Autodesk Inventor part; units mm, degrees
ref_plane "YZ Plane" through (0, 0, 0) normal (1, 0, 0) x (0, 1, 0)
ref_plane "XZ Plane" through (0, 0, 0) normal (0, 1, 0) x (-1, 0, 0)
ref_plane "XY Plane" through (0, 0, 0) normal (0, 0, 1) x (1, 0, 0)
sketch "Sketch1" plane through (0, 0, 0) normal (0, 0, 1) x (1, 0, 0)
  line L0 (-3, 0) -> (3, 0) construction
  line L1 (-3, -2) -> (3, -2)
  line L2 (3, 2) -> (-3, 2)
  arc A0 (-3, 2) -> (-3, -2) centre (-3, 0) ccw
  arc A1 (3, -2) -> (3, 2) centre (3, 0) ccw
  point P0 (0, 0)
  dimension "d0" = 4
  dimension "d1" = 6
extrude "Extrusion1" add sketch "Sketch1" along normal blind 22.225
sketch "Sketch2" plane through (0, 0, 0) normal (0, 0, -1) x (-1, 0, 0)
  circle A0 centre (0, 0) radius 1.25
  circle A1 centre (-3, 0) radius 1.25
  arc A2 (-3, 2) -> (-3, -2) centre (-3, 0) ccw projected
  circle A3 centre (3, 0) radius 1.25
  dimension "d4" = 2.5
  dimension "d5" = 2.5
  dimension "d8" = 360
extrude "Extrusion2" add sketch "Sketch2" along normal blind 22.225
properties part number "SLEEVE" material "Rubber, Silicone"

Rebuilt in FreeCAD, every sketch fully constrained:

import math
import FreeCAD as App
import Part
import Sketcher

V = App.Vector

doc = App.newDocument("Part")
body = doc.addObject("PartDesign::Body", "Body")

# Sketch on XY plane
sketch1 = body.newObject("Sketcher::SketchObject", "Sketch")
sketch1.AttachmentSupport = (doc.getObject("XY_Plane"), [""])
sketch1.MapMode = "FlatFace"
sketch1.addGeometry([
    Part.ArcOfCircle(Part.Circle(V(-3, 0, 0), V(0, 0, 1), 2), math.radians(90), math.radians(270)),
    Part.LineSegment(V(-3, -2, 0), V(3, -2, 0)),
    Part.ArcOfCircle(Part.Circle(V(3, 0, 0), V(0, 0, 1), 2), math.radians(-90), math.radians(90)),
    Part.LineSegment(V(3, 2, 0), V(-3, 2, 0)),
], False)
sketch1.addConstraint([
    Sketcher.Constraint("Tangent", 0, 2, 1, 1),
    Sketcher.Constraint("Tangent", 1, 2, 2, 1),
    Sketcher.Constraint("Tangent", 2, 2, 3, 1),
    Sketcher.Constraint("Tangent", 3, 2, 0, 1),
    Sketcher.Constraint("Horizontal", 1),
    Sketcher.Constraint("Horizontal", 3),
    Sketcher.Constraint("Symmetric", 0, 3, 2, 3, -1, 1),
    Sketcher.Constraint("Radius", 0, 2.0),
    Sketcher.Constraint("DistanceX", 1, 1, 1, 2, 6.0),
])
pad1 = body.newObject("PartDesign::Pad", "Pad")
pad1.Profile = sketch1
pad1.Length = 22.225

# Sketch on XY plane
sketch2 = body.newObject("Sketcher::SketchObject", "Sketch001")
sketch2.AttachmentSupport = (doc.getObject("XY_Plane"), [""])
sketch2.MapMode = "FlatFace"
sketch2.addGeometry([
    Part.Circle(V(0, 0, 0), V(0, 0, 1), 1.2),
    Part.Circle(V(3, 0, 0), V(0, 0, 1), 1.2),
    Part.Circle(V(-3, 0, 0), V(0, 0, 1), 1.2),
], False)
sketch2.addConstraint([
    Sketcher.Constraint("Coincident", 0, 3, -1, 1),
    Sketcher.Constraint("Equal", 0, 1),
    Sketcher.Constraint("Equal", 1, 2),
    Sketcher.Constraint("Symmetric", 1, 3, 2, 3, -1, 1),
    Sketcher.Constraint("PointOnObject", 1, 3, -1),
    Sketcher.Constraint("Diameter", 0, 2.5),
    Sketcher.Constraint("DistanceX", -1, 1, 1, 3, 3.0),
])
pad2 = body.newObject("PartDesign::Pad", "Pad001")
pad2.Profile = sketch2
pad2.Length = 22.225
pad2.Reversed = True

doc.recompute()
